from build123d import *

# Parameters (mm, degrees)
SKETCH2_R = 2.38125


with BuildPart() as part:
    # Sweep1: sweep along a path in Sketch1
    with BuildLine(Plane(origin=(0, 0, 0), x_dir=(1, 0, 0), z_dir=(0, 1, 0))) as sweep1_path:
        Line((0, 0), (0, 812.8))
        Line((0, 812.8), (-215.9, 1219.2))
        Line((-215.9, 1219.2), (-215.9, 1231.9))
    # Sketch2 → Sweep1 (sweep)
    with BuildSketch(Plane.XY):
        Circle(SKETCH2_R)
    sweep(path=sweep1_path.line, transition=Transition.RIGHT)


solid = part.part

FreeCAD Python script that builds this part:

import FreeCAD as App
import Part
import Sketcher
Q = App.Units.Quantity

doc = App.newDocument("Part")
body = doc.addObject("PartDesign::Body", "Body")

# Sketch on XY plane
sketch1 = doc.addObject("Sketcher::SketchObject", "Sketch")
body.addObject(sketch1)
sketch1.AttachmentSupport = (doc.XY_Plane, [""])
sketch1.MapMode = "FlatFace"
sketch1.addGeometry(Part.Circle(App.Vector(0, 0, 0), App.Vector(0, 0, 1), 2.38125), False)
sketch1.addConstraint([
    Sketcher.Constraint("Coincident", 0, 3, -1, 1),
    Sketcher.Constraint("Diameter", 0, Q("0.1875 in")),
])

# Sketch on XZ plane
sketch2 = doc.addObject("Sketcher::SketchObject", "Sketch001")
body.addObject(sketch2)
sketch2.AttachmentSupport = (doc.XZ_Plane, [""])
sketch2.MapMode = "FlatFace"
sketch2.addGeometry([
    Part.LineSegment(App.Vector(0, 0, 0), App.Vector(0, -812.8, 0)),
    Part.LineSegment(App.Vector(0, -812.8, 0), App.Vector(-215.9, -1219.2, 0)),
    Part.LineSegment(App.Vector(-215.9, -1219.2, 0), App.Vector(-215.9, -1231.9, 0)),
], False)
sketch2.addConstraint([
    Sketcher.Constraint("Coincident", 0, 2, 1, 1),
    Sketcher.Constraint("Coincident", 1, 2, 2, 1),
    Sketcher.Constraint("Vertical", 0),
    Sketcher.Constraint("Vertical", 2),
    Sketcher.Constraint("Coincident", 0, 1, -1, 1),
    Sketcher.Constraint("DistanceY", 0, 2, 0, 1, Q("32 in")),
    Sketcher.Constraint("DistanceY", 2, 2, 2, 1, Q("0.5 in")),
    Sketcher.Constraint("DistanceY", 1, 2, -1, 1, Q("48 in")),
    Sketcher.Constraint("DistanceX", 1, 2, -1, 1, Q("8.5 in")),
])
doc.recompute()

additivepipe = doc.addObject("PartDesign::AdditivePipe", "AdditivePipe")
body.addObject(additivepipe)
additivepipe.Profile = sketch1
additivepipe.Spine = (sketch2, ["Edge1", "Edge2", "Edge3"])
additivepipe.Transition = "Right corner"

doc.recompute()
